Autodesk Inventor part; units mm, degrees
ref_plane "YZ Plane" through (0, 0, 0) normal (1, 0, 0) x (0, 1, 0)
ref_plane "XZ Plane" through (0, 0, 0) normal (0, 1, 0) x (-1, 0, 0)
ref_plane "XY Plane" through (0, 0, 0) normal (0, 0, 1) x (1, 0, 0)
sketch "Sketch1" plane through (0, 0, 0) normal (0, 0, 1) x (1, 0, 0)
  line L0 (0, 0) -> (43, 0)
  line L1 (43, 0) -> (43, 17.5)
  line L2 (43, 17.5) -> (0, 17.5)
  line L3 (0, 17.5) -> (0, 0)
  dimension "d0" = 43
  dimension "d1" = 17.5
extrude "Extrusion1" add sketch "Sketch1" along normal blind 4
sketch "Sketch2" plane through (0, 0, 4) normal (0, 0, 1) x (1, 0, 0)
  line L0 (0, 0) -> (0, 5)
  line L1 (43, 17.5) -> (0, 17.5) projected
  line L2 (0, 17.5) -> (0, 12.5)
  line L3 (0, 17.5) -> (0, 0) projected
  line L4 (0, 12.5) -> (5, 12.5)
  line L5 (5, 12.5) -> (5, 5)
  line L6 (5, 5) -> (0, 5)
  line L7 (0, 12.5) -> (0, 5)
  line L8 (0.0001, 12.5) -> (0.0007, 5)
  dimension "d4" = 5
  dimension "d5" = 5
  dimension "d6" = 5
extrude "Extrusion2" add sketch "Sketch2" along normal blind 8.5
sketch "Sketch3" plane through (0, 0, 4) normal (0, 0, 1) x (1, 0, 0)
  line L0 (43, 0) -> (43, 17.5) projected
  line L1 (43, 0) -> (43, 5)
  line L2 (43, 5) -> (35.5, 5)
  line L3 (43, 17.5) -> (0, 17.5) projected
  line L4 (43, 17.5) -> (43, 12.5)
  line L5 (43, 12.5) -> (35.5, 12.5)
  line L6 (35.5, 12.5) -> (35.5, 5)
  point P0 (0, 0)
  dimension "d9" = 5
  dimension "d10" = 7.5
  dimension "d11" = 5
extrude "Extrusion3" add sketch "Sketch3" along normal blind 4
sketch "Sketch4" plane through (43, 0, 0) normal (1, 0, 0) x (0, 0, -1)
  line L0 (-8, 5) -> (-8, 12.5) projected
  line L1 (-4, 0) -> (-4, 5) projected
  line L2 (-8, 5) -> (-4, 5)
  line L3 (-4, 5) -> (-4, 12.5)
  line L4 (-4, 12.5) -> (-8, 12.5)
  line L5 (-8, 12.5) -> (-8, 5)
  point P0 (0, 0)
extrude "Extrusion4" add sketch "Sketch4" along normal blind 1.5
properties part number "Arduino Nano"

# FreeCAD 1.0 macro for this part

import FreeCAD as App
import Part
import Sketcher
from FreeCAD import Vector


def add_polygon(sketch, points):
    """Adds a closed chain of lines whose ends are joined by coincident constraints."""
    first, n = sketch.GeometryCount, len(points)
    for a, b in zip(points, points[1:] + points[:1]):
        sketch.addGeometry(Part.LineSegment(App.Vector(*a, 0), App.Vector(*b, 0)), False)
    for i in range(n):
        sketch.addConstraint(Sketcher.Constraint("Coincident", first + i, 2, first + (i + 1) % n, 1))

doc = App.newDocument("Part")
body = doc.addObject("PartDesign::Body", "Body")

sketch1 = body.newObject("Sketcher::SketchObject", "Sketch")
sketch1.AttachmentSupport = (doc.getObject("XY_Plane"), [""])
sketch1.MapMode = "FlatFace"
add_polygon(sketch1, [(0, 18), (0, 0), (43, 0), (43, 18)])
sketch1.addConstraint([
    Sketcher.Constraint("Vertical", 0),
    Sketcher.Constraint("Horizontal", 1),
    Sketcher.Constraint("Vertical", 2),
    Sketcher.Constraint("Horizontal", 3),
    Sketcher.Constraint("Coincident", 0, 2, -1, 1),
    Sketcher.Constraint("DistanceX", 1, 1, 1, 2, 43.0),
    Sketcher.Constraint("DistanceY", 0, 2, 0, 1, 17.5),
])
pad1 = body.newObject("PartDesign::Pad", "Pad")
pad1.Profile = sketch1
pad1.Length = 4

sketch2 = body.newObject("Sketcher::SketchObject", "Sketch001")
sketch2.AttachmentSupport = (doc.getObject("XY_Plane"), [""])
sketch2.MapMode = "FlatFace"
sketch2.AttachmentOffset = App.Placement(Vector(0, 0, 4), App.Rotation())
add_polygon(sketch2, [(5, 12), (0, 12), (0, 5), (5, 5)])
sketch2.addConstraint([
    Sketcher.Constraint("Horizontal", 0),
    Sketcher.Constraint("Vertical", 1),
    Sketcher.Constraint("Horizontal", 2),
    Sketcher.Constraint("Vertical", 3),
    Sketcher.Constraint("PointOnObject", 0, 2, -2),
    Sketcher.Constraint("DistanceX", 0, 2, 0, 1, 5.0),
    Sketcher.Constraint("DistanceY", -1, 1, 1, 2, 5.0),
    Sketcher.Constraint("DistanceY", 1, 2, 1, 1, 7.5),
])
pad2 = body.newObject("PartDesign::Pad", "Pad001")
pad2.Profile = sketch2
pad2.Length = 8.5

sketch3 = body.newObject("Sketcher::SketchObject", "Sketch002")
sketch3.AttachmentSupport = (doc.getObject("XY_Plane"), [""])
sketch3.MapMode = "FlatFace"
sketch3.AttachmentOffset = App.Placement(Vector(0, 0, 4), App.Rotation())
add_polygon(sketch3, [(36, 5), (43, 5), (43, 12), (36, 12)])
sketch3.addConstraint([
    Sketcher.Constraint("Horizontal", 0),
    Sketcher.Constraint("Vertical", 1),
    Sketcher.Constraint("Horizontal", 2),
    Sketcher.Constraint("Vertical", 3),
    Sketcher.Constraint("Equal", 2, 1),
    Sketcher.Constraint("DistanceX", 0, 1, 0, 2, 7.5),
    Sketcher.Constraint("DistanceY", -1, 1, 0, 2, 5.0),
    Sketcher.Constraint("DistanceX", -1, 1, 0, 2, 43.0),
])
pad3 = body.newObject("PartDesign::Pad", "Pad002")
pad3.Profile = sketch3
pad3.Length = 4

sketch4 = body.newObject("Sketcher::SketchObject", "Sketch003")
sketch4.AttachmentSupport = (doc.getObject("YZ_Plane"), [""])
sketch4.MapMode = "FlatFace"
sketch4.AttachmentOffset = App.Placement(Vector(0, 0, 43), App.Rotation())
add_polygon(sketch4, [(12.5, 8), (5, 8), (5, 4), (12.5, 4)])
sketch4.addConstraint([
    Sketcher.Constraint("Horizontal", 0),
    Sketcher.Constraint("Vertical", 1),
    Sketcher.Constraint("Horizontal", 2),
    Sketcher.Constraint("Vertical", 3),
    Sketcher.Constraint("DistanceY", 1, 2, 1, 1, 4.0),
    Sketcher.Constraint("DistanceX", 0, 2, 0, 1, 7.5),
    Sketcher.Constraint("DistanceX", -1, 1, 0, 2, 5.0),
    Sketcher.Constraint("DistanceY", -1, 1, 0, 2, 8.0),
])
pad4 = body.newObject("PartDesign::Pad", "Pad003")
pad4.Profile = sketch4
pad4.Length = 1.5

doc.recompute()
